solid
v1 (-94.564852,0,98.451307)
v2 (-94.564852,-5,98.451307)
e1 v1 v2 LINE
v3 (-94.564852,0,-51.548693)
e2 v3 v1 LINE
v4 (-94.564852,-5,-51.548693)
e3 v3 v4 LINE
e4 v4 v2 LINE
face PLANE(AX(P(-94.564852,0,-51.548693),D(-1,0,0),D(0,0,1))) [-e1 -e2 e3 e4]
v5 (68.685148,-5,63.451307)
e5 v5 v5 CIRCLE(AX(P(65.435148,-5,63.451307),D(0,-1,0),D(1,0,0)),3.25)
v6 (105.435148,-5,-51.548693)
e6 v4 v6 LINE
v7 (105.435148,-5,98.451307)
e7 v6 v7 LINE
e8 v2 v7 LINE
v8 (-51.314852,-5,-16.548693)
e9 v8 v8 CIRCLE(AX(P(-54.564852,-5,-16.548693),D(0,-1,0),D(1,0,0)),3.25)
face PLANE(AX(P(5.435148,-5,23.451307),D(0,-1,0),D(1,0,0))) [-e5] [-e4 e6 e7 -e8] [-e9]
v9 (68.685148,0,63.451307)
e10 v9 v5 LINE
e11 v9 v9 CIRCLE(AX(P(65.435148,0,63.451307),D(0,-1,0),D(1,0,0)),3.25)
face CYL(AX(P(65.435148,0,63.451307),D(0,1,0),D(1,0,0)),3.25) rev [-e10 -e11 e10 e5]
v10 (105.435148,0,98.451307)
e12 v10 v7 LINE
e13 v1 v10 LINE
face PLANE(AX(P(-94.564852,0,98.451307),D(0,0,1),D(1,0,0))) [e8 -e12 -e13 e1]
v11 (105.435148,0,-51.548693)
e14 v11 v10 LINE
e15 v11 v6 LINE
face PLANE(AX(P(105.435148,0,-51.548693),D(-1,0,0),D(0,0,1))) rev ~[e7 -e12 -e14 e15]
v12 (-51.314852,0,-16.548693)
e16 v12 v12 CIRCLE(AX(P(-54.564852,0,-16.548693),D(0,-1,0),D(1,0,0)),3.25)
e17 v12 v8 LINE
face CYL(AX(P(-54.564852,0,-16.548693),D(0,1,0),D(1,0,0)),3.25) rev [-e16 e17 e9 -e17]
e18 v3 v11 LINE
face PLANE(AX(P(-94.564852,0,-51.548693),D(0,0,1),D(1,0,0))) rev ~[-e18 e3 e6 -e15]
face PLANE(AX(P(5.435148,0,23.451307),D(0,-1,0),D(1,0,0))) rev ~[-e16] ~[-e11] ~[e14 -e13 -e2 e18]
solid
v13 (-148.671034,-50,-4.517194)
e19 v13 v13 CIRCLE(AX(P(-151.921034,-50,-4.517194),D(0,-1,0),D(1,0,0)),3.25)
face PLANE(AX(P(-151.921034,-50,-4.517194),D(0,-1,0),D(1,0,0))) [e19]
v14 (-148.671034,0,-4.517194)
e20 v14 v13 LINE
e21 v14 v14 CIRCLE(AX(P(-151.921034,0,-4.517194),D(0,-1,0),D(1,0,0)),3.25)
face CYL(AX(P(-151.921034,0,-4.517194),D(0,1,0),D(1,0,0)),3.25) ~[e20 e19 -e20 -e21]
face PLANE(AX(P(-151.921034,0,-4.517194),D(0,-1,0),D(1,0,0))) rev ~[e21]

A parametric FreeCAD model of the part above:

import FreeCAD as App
import Part
import Sketcher

V = App.Vector


def add_polygon(sketch, points):
    """Adds a closed chain of lines whose ends are joined by coincident constraints."""
    first, n = sketch.GeometryCount, len(points)
    for a, b in zip(points, points[1:] + points[:1]):
        sketch.addGeometry(Part.LineSegment(App.Vector(*a, 0), App.Vector(*b, 0)), False)
    for i in range(n):
        sketch.addConstraint(Sketcher.Constraint("Coincident", first + i, 2, first + (i + 1) % n, 1))

doc = App.newDocument("Part")
body = doc.addObject("PartDesign::Body", "Body")

# Sketch on XZ plane
sketch1 = body.newObject("Sketcher::SketchObject", "Sketch")
sketch1.AttachmentSupport = (doc.getObject("XZ_Plane"), [""])
sketch1.MapMode = "FlatFace"
add_polygon(sketch1, [(-94.6, 98.5), (-94.6, -51.5), (105.4, -51.5), (105.4, 98.5)])  # lines 0-3
sketch1.addGeometry(Part.Circle(V(-54.6, -16.5, 0), V(0, 0, 1), 3.2), False)  # 4
sketch1.addGeometry(Part.Circle(V(65.4, 63.5, 0), V(0, 0, 1), 3.2), False)  # 5
sketch1.addConstraint(Sketcher.Constraint("Vertical", 0))
sketch1.addConstraint(Sketcher.Constraint("Horizontal", 1))
sketch1.addConstraint(Sketcher.Constraint("Vertical", 2))
sketch1.addConstraint(Sketcher.Constraint("Horizontal", 3))
sketch1.addConstraint(Sketcher.Constraint("Equal", 4, 5))
sketch1.addConstraint(Sketcher.Constraint("Diameter", 4, 6.5))
sketch1.addConstraint(Sketcher.Constraint("DistanceX", 1, 1, 1, 2, 200.0))
sketch1.addConstraint(Sketcher.Constraint("DistanceY", 0, 2, 0, 1, 150.0))
sketch1.addConstraint(Sketcher.Constraint("DistanceX", 4, 3, 5, 3, 120.0))
sketch1.addConstraint(Sketcher.Constraint("DistanceY", 4, 3, 5, 3, 80.0))
sketch1.addConstraint(Sketcher.Constraint("DistanceX", 0, 2, 4, 3, 40.0))
sketch1.addConstraint(Sketcher.Constraint("DistanceY", 0, 2, 4, 3, 35.0))
sketch1.addConstraint(Sketcher.Constraint("DistanceX", -1, 1, 5, 3, 65.435148))
sketch1.addConstraint(Sketcher.Constraint("DistanceY", 4, 3, -1, 1, 16.548693))
pad1 = body.newObject("PartDesign::Pad", "Pad")
pad1.Profile = sketch1
pad1.Length = 5
body2 = doc.addObject("PartDesign::Body", "Body001")

# Sketch on XZ plane
sketch2 = body2.newObject("Sketcher::SketchObject", "Sketch001")
sketch2.AttachmentSupport = (doc.getObject("XZ_Plane001"), [""])
sketch2.MapMode = "FlatFace"
sketch2.addGeometry(Part.Circle(V(-151.9, -4.5, 0), V(0, 0, 1), 3.2), False)
sketch2.addConstraint(Sketcher.Constraint("Diameter", 0, 6.5))
sketch2.addConstraint(Sketcher.Constraint("DistanceX", 0, 3, -1, 1, 151.921034))
sketch2.addConstraint(Sketcher.Constraint("DistanceY", 0, 3, -1, 1, 4.517194))
pad2 = body2.newObject("PartDesign::Pad", "Pad001")
pad2.Profile = sketch2
pad2.Length = 50

doc.recompute()
